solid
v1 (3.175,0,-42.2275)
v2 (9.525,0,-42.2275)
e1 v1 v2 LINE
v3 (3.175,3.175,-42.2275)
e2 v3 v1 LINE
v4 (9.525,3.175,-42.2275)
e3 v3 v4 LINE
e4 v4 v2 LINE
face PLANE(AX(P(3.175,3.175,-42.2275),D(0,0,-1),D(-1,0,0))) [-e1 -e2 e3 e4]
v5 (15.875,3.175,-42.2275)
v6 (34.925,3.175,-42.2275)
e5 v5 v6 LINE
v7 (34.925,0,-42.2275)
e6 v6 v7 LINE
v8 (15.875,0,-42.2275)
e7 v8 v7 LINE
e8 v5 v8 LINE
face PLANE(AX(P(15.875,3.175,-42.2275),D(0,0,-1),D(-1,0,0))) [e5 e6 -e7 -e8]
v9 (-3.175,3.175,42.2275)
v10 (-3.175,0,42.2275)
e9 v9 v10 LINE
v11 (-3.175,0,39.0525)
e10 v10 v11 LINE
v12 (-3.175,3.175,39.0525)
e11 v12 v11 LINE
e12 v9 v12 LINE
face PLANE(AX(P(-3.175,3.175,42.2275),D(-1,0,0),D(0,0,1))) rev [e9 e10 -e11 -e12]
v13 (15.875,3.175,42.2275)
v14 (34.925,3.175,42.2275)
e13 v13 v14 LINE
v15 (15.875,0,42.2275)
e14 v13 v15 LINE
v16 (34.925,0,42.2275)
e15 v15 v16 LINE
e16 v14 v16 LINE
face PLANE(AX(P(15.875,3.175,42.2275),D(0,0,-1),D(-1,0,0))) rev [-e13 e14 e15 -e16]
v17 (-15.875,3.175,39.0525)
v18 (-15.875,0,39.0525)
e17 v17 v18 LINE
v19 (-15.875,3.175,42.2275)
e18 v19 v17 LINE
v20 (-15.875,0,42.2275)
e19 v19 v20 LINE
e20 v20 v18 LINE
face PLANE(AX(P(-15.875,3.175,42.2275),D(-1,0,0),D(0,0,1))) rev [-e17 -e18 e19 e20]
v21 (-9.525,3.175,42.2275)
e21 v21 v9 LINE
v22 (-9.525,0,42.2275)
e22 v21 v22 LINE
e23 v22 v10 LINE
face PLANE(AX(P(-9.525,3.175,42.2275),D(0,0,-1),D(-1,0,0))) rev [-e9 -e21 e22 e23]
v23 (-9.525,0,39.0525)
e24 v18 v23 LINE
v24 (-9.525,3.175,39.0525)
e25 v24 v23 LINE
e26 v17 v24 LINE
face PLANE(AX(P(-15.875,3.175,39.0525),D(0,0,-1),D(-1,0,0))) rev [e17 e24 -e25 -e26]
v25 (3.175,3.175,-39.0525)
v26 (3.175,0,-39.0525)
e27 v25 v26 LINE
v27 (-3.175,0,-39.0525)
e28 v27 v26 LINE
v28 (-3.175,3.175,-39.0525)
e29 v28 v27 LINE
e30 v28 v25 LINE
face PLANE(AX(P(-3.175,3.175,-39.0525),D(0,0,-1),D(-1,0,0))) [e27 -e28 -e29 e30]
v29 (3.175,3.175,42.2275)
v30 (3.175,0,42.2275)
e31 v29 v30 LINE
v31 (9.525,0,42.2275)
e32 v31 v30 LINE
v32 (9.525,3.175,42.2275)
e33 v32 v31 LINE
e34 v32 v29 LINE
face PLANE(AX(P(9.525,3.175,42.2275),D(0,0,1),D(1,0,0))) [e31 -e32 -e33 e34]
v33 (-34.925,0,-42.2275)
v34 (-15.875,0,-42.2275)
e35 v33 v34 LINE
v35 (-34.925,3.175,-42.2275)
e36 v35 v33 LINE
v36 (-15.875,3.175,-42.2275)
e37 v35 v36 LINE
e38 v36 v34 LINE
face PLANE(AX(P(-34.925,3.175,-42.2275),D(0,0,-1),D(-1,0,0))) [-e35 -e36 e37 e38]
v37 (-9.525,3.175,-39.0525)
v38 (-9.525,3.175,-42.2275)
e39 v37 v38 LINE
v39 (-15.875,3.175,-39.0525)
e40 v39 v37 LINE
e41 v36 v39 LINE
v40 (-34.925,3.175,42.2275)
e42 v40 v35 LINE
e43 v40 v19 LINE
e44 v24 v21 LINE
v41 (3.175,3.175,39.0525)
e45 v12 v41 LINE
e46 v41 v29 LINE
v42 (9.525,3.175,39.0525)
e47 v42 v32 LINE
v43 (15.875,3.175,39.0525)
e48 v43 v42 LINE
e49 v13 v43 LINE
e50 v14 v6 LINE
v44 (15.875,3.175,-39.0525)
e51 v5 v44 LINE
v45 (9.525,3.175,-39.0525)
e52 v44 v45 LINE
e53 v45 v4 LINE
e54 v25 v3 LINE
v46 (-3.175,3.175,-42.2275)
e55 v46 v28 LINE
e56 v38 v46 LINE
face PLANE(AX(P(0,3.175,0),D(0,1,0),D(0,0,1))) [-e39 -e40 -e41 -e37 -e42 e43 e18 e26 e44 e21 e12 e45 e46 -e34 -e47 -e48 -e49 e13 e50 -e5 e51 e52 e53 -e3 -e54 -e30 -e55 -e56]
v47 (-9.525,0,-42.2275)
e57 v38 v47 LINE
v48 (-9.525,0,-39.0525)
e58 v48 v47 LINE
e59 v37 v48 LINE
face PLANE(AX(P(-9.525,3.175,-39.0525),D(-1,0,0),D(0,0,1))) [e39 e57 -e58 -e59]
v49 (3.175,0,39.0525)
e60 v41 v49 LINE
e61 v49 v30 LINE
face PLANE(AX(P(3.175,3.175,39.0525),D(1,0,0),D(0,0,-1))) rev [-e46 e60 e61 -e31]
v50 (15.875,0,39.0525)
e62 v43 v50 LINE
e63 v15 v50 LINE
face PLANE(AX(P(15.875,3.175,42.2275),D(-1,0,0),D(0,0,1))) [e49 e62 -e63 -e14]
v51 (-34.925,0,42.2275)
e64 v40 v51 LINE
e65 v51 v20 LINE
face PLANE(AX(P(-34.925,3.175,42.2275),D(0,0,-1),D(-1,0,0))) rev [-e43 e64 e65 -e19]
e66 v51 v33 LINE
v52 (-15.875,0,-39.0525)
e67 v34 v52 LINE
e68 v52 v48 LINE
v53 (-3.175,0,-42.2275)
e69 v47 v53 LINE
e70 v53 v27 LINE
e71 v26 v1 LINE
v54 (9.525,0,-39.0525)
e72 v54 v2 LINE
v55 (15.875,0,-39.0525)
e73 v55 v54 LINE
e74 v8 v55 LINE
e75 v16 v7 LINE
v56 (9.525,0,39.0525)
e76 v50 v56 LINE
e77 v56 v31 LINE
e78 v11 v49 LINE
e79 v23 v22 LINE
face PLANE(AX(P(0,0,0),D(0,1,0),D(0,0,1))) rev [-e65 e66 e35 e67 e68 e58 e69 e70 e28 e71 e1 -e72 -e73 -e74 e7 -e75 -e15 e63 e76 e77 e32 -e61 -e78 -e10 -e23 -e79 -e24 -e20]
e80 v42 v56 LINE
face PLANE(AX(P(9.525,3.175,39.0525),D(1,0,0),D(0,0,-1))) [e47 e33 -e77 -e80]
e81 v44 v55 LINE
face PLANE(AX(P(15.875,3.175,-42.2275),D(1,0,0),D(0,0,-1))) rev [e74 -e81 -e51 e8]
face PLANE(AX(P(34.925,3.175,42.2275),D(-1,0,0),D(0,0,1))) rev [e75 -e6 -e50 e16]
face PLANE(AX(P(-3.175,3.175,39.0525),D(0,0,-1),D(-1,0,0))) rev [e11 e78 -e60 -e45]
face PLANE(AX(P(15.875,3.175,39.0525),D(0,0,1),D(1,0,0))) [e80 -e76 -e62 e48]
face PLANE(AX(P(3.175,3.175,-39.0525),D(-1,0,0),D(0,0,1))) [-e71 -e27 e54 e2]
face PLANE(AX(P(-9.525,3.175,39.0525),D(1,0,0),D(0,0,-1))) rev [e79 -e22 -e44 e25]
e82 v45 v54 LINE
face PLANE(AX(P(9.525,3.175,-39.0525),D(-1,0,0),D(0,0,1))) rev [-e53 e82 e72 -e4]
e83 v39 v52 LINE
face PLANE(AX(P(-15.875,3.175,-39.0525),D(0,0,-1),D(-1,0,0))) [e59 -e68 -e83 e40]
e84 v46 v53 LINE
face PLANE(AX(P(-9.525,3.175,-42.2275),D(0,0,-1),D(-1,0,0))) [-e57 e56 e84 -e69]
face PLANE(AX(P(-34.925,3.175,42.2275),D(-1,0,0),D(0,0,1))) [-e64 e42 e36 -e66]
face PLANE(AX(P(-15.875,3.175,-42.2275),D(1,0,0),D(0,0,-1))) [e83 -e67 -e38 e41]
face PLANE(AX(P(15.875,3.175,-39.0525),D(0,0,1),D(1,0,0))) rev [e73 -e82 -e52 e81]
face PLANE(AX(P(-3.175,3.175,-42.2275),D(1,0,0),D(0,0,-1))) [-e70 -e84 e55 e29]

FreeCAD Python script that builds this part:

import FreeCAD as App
import Part
import Sketcher
Q = App.Units.Quantity


def add_polygon(sketch, points):
    """Adds a closed chain of lines whose ends are joined by coincident constraints."""
    first, n = sketch.GeometryCount, len(points)
    for a, b in zip(points, points[1:] + points[:1]):
        sketch.addGeometry(Part.LineSegment(App.Vector(*a, 0), App.Vector(*b, 0)), False)
    for i in range(n):
        sketch.addConstraint(Sketcher.Constraint("Coincident", first + i, 2, first + (i + 1) % n, 1))

doc = App.newDocument("Part")
body = doc.addObject("PartDesign::Body", "Body")

# Sketch on XZ plane
sketch1 = body.newObject("Sketcher::SketchObject", "Sketch")
sketch1.AttachmentSupport = (doc.getObject("XZ_Plane"), [""])
sketch1.MapMode = "FlatFace"
add_polygon(sketch1, [(-34.9, 42.2), (-15.9, 42.2), (-15.9, 39.1), (-9.5, 39.1), (-9.5, 42.2), (-3.2, 42.2), (-3.2, 39.1), (3.2, 39.1), (3.2, 42.2), (9.5, 42.2), (9.5, 39.1), (15.9, 39.1), (15.9, 42.2), (34.9, 42.2), (34.9, -42.2), (15.9, -42.2), (15.9, -39.1), (9.5, -39.1), (9.5, -42.2), (3.2, -42.2), (3.2, -39.1), (-3.2, -39.1), (-3.2, -42.2), (-9.5, -42.2), (-9.5, -39.1), (-15.9, -39.1), (-15.9, -42.2), (-34.9, -42.2)])  # lines 0-27
sketch1.addConstraint(Sketcher.Constraint("Horizontal", 0))
sketch1.addConstraint(Sketcher.Constraint("Vertical", 1))
sketch1.addConstraint(Sketcher.Constraint("Horizontal", 2))
sketch1.addConstraint(Sketcher.Constraint("Vertical", 3))
sketch1.addConstraint(Sketcher.Constraint("Horizontal", 4))
sketch1.addConstraint(Sketcher.Constraint("Vertical", 5))
sketch1.addConstraint(Sketcher.Constraint("Horizontal", 6))
sketch1.addConstraint(Sketcher.Constraint("Vertical", 7))
sketch1.addConstraint(Sketcher.Constraint("Horizontal", 8))
sketch1.addConstraint(Sketcher.Constraint("Vertical", 9))
sketch1.addConstraint(Sketcher.Constraint("Horizontal", 10))
sketch1.addConstraint(Sketcher.Constraint("Vertical", 11))
sketch1.addConstraint(Sketcher.Constraint("Horizontal", 12))
sketch1.addConstraint(Sketcher.Constraint("Vertical", 13))
sketch1.addConstraint(Sketcher.Constraint("Horizontal", 14))
sketch1.addConstraint(Sketcher.Constraint("Vertical", 15))
sketch1.addConstraint(Sketcher.Constraint("Horizontal", 16))
sketch1.addConstraint(Sketcher.Constraint("Vertical", 17))
sketch1.addConstraint(Sketcher.Constraint("Horizontal", 18))
sketch1.addConstraint(Sketcher.Constraint("Vertical", 19))
sketch1.addConstraint(Sketcher.Constraint("Horizontal", 20))
sketch1.addConstraint(Sketcher.Constraint("Vertical", 21))
sketch1.addConstraint(Sketcher.Constraint("Horizontal", 22))
sketch1.addConstraint(Sketcher.Constraint("Vertical", 23))
sketch1.addConstraint(Sketcher.Constraint("Horizontal", 24))
sketch1.addConstraint(Sketcher.Constraint("Vertical", 25))
sketch1.addConstraint(Sketcher.Constraint("Horizontal", 26))
sketch1.addConstraint(Sketcher.Constraint("Vertical", 27))
sketch1.addConstraint(Sketcher.Constraint("Symmetric", 0, 2, 14, 2, -1, 1))
sketch1.addConstraint(Sketcher.Constraint("Symmetric", 2, 2, 16, 2, -1, 1))
sketch1.addConstraint(Sketcher.Constraint("Symmetric", 4, 2, 18, 2, -1, 1))
sketch1.addConstraint(Sketcher.Constraint("Symmetric", 6, 2, 20, 2, -1, 1))
sketch1.addConstraint(Sketcher.Constraint("Symmetric", 8, 2, 22, 2, -1, 1))
sketch1.addConstraint(Sketcher.Constraint("Symmetric", 10, 2, 24, 2, -1, 1))
sketch1.addConstraint(Sketcher.Constraint("Symmetric", 12, 2, 26, 2, -1, 1))
sketch1.addConstraint(Sketcher.Constraint("Symmetric", 4, 2, 7, 2, -2))
sketch1.addConstraint(Sketcher.Constraint("Symmetric", 2, 2, 9, 2, -2))
sketch1.addConstraint(Sketcher.Constraint("Symmetric", 0, 2, 11, 2, -2))
sketch1.addConstraint(Sketcher.Constraint("Horizontal", 0, 2, 3, 2))
sketch1.addConstraint(Sketcher.Constraint("Horizontal", 2, 2, 5, 2))
sketch1.addConstraint(Sketcher.Constraint("Equal", 2, 4))
sketch1.addConstraint(Sketcher.Constraint("Equal", 4, 6))
sketch1.addConstraint(Sketcher.Constraint("DistanceX", 8, 2, 12, 2, Q("1 in")))
sketch1.addConstraint(Sketcher.Constraint("DistanceX", 0, 1, 0, 2, Q("0.75 in")))
sketch1.addConstraint(Sketcher.Constraint("DistanceY", 13, 2, 10, 2, Q("3.2 in")))
sketch1.addConstraint(Sketcher.Constraint("DistanceY", 1, 2, 1, 1, Q("0.125 in")))
pad1 = body.newObject("PartDesign::Pad", "Pad")
pad1.Profile = sketch1
pad1.Length = Q("0.125 in")
pad1.Reversed = True

doc.recompute()
